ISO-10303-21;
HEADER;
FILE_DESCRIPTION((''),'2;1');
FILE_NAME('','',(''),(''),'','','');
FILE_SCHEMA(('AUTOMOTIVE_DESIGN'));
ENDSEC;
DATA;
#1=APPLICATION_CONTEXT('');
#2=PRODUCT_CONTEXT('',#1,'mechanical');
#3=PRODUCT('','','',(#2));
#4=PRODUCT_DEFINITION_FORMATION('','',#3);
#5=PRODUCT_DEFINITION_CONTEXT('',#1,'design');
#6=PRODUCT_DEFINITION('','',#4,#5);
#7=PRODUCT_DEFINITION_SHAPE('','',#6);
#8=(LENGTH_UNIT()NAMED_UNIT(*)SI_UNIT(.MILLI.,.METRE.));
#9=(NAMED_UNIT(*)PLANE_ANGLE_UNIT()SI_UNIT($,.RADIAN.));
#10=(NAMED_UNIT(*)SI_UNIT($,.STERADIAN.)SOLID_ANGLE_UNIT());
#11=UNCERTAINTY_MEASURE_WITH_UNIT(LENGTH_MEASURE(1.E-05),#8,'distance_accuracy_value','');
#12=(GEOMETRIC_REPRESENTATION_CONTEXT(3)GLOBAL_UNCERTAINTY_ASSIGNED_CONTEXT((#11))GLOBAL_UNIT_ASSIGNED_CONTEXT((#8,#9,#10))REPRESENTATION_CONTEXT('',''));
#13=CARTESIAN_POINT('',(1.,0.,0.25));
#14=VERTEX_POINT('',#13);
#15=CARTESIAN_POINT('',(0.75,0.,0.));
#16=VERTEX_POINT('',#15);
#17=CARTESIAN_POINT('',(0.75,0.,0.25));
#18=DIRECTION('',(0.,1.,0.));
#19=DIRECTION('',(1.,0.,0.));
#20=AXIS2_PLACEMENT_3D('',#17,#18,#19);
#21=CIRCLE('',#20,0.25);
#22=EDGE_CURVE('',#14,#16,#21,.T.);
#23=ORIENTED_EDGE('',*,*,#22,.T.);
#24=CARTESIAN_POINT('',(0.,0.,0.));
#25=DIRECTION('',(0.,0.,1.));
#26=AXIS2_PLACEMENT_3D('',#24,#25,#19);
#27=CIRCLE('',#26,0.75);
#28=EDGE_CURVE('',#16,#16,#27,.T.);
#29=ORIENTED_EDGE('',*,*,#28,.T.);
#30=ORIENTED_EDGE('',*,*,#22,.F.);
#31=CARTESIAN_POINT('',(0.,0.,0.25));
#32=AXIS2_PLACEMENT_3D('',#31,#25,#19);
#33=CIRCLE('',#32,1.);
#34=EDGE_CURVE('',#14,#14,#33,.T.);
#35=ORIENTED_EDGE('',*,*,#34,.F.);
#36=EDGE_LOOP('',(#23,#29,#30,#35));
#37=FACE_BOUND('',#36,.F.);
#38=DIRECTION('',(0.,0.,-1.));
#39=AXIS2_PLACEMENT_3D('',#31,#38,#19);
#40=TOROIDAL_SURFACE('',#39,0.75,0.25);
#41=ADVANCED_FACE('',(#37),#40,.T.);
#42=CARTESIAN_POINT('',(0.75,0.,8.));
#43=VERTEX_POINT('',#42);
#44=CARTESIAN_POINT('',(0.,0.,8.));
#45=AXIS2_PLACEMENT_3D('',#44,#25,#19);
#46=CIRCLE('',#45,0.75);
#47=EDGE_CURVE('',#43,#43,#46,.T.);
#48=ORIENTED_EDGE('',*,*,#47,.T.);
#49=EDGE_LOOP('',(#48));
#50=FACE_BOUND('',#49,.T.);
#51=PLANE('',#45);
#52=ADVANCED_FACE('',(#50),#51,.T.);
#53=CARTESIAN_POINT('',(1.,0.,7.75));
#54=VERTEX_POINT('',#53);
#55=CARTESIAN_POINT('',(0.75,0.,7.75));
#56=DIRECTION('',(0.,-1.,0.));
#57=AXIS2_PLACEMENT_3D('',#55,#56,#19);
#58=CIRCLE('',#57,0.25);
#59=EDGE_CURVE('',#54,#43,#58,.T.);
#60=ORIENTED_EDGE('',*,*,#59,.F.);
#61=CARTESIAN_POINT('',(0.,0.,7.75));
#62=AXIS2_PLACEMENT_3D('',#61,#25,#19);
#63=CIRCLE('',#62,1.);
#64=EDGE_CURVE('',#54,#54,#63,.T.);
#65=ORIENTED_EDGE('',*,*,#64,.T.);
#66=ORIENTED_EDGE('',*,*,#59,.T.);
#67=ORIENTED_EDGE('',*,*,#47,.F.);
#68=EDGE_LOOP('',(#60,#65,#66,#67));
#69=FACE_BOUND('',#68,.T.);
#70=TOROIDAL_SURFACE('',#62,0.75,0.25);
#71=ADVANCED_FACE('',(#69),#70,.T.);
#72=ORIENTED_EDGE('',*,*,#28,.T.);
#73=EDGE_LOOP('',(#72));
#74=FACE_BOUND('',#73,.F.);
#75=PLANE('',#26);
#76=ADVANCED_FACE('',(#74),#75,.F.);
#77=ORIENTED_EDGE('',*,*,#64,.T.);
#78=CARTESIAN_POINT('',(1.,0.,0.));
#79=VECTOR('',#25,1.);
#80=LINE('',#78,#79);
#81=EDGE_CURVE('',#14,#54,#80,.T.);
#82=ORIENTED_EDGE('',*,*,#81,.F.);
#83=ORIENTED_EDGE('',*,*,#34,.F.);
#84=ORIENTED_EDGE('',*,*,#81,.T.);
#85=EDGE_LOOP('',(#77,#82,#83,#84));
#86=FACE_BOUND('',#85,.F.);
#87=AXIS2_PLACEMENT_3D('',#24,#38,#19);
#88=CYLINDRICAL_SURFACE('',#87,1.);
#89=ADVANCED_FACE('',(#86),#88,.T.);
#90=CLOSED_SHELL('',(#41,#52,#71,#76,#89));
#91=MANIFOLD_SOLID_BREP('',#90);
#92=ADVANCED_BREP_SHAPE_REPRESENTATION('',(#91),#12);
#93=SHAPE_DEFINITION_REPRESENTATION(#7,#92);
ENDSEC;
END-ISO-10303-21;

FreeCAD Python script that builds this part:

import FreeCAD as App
import Part
import Sketcher

V = App.Vector
Q = App.Units.Quantity


def edges_at(feature, points):
    """Names of the edges that pass closest to the given points."""
    edges = feature.Shape.Edges
    near = lambda p: min(range(len(edges)), key=lambda i: edges[i].distToShape(Part.Vertex(*p))[0])
    return sorted({f"Edge{near(p) + 1}" for p in points})

doc = App.newDocument("Part")
body = doc.addObject("PartDesign::Body", "Body")

# Sketch on XY plane
sketch1 = doc.addObject("Sketcher::SketchObject", "Sketch")
body.addObject(sketch1)
sketch1.AttachmentSupport = (doc.XY_Plane, [""])
sketch1.MapMode = "FlatFace"
sketch1.addGeometry(Part.Circle(V(0, 0, 0), V(0, 0, 1), 1), False)
sketch1.addConstraint([
    Sketcher.Constraint("Coincident", 0, 3, -1, 1),
    Sketcher.Constraint("Diameter", 0, Q("2 mm")),
])
pad1 = doc.addObject("PartDesign::Pad", "Pad")
body.addObject(pad1)
pad1.Profile = sketch1
pad1.Length = 8
doc.recompute()

fillet = doc.addObject("PartDesign::Fillet", "Fillet")
body.addObject(fillet)
fillet.Base = (pad1, edges_at(pad1, [(-0.932, -0.362, 8), (-0.932, -0.362, 0)]))
fillet.Radius = 0.25

doc.recompute()
